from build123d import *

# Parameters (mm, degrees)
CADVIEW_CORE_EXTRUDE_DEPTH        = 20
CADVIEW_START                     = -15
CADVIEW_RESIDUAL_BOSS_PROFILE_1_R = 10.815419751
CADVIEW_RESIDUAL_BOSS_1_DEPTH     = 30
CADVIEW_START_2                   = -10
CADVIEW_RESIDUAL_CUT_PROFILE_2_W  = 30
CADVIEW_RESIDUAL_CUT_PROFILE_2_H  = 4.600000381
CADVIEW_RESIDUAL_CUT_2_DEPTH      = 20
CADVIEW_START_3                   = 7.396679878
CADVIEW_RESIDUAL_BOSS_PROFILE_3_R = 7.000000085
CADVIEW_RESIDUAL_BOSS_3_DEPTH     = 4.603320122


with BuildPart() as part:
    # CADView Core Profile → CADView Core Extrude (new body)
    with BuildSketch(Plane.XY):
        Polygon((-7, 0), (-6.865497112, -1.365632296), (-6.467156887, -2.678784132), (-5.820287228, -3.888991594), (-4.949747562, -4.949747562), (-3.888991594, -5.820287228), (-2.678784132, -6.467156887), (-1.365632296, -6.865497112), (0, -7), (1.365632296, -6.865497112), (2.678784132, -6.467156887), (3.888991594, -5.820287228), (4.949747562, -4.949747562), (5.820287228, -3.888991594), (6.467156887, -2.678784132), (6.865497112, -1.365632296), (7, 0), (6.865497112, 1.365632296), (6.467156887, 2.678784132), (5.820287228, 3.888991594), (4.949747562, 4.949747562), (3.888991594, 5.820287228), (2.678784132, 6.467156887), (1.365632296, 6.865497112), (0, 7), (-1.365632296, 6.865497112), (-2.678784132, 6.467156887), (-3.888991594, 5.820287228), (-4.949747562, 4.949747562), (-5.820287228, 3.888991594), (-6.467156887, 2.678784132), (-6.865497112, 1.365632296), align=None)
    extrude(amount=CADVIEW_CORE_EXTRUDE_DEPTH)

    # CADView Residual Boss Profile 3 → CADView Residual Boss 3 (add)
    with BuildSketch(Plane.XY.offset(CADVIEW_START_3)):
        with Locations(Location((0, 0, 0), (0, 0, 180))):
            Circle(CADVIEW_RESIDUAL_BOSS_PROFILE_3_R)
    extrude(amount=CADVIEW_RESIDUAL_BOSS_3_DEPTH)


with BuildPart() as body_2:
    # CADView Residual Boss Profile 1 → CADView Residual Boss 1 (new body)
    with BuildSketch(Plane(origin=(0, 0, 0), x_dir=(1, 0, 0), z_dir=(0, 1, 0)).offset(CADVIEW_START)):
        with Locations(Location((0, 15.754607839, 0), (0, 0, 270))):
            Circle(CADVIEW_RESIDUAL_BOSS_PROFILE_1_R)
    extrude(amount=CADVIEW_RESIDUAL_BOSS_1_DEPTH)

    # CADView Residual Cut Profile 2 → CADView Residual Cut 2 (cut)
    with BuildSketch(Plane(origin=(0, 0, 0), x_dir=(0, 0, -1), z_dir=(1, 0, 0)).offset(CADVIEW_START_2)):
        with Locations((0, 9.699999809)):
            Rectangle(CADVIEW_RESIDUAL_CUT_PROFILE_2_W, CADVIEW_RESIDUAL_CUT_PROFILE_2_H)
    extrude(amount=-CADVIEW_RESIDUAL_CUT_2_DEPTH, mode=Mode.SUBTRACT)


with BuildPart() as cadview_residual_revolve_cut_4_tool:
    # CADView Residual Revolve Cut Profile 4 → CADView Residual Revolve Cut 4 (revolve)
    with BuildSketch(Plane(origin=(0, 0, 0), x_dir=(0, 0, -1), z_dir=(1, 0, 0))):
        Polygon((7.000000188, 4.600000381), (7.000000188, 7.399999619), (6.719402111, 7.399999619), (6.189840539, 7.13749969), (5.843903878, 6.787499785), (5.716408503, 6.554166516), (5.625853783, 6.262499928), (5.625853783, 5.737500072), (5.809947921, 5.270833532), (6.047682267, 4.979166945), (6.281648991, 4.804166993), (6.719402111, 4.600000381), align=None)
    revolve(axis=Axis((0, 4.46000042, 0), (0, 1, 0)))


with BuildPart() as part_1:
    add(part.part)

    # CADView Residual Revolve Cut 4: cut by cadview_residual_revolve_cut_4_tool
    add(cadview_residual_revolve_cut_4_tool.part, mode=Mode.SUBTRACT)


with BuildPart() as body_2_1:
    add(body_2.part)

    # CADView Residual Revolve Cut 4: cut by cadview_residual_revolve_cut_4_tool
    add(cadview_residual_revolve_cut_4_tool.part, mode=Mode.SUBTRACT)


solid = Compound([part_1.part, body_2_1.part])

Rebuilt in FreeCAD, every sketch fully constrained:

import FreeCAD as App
import Part
import Sketcher
Q = App.Units.Quantity

doc = App.newDocument("Part")
params = doc.addObject("Spreadsheet::Sheet", "Params")
for row, (alias, value) in enumerate([
    ("pad1_length", "20 mm"),
    ("sketch2_diameter", "14 mm"),
    ("pad2_length", "4.60332 mm"),
    ("pad3_length", "30 mm"),
    ("sketch4_height", "30 mm"),
    ("sketch4_width", "4.6 mm"),
    ("pocket1_length", "20 mm"),
    ("sketch5_width", "2.799999 mm"),
    ("revolution_angle", "360 deg"),
], start=1):
    params.set(f"A{row}", alias)
    params.set(f"B{row}", "=" + value)
    params.setAlias(f"B{row}", alias)

body = doc.addObject("PartDesign::Body", "Body")

sketch1 = doc.addObject("Sketcher::SketchObject", "Sketch")
body.addObject(sketch1)
sketch1.AttachmentSupport = (doc.XY_Plane, [""])
sketch1.MapMode = "FlatFace"
sketch1.addGeometry([
    Part.LineSegment(App.Vector(-7, 0, 0), App.Vector(-6.865497, -1.365632, 0)),
    Part.LineSegment(App.Vector(-6.865497, -1.365632, 0), App.Vector(-6.467157, -2.678784, 0)),
    Part.LineSegment(App.Vector(-6.467157, -2.678784, 0), App.Vector(-5.820287, -3.888992, 0)),
    Part.LineSegment(App.Vector(-5.820287, -3.888992, 0), App.Vector(-4.949748, -4.949748, 0)),
    Part.LineSegment(App.Vector(-4.949748, -4.949748, 0), App.Vector(-3.888992, -5.820287, 0)),
    Part.LineSegment(App.Vector(-3.888992, -5.820287, 0), App.Vector(-2.678784, -6.467157, 0)),
    Part.LineSegment(App.Vector(-2.678784, -6.467157, 0), App.Vector(-1.365632, -6.865497, 0)),
    Part.LineSegment(App.Vector(-1.365632, -6.865497, 0), App.Vector(0, -7, 0)),
    Part.LineSegment(App.Vector(0, -7, 0), App.Vector(1.365632, -6.865497, 0)),
    Part.LineSegment(App.Vector(1.365632, -6.865497, 0), App.Vector(2.678784, -6.467157, 0)),
    Part.LineSegment(App.Vector(2.678784, -6.467157, 0), App.Vector(3.888992, -5.820287, 0)),
    Part.LineSegment(App.Vector(3.888992, -5.820287, 0), App.Vector(4.949748, -4.949748, 0)),
    Part.LineSegment(App.Vector(4.949748, -4.949748, 0), App.Vector(5.820287, -3.888992, 0)),
    Part.LineSegment(App.Vector(5.820287, -3.888992, 0), App.Vector(6.467157, -2.678784, 0)),
    Part.LineSegment(App.Vector(6.467157, -2.678784, 0), App.Vector(6.865497, -1.365632, 0)),
    Part.LineSegment(App.Vector(6.865497, -1.365632, 0), App.Vector(7, 0, 0)),
    Part.LineSegment(App.Vector(7, 0, 0), App.Vector(6.865497, 1.365632, 0)),
    Part.LineSegment(App.Vector(6.865497, 1.365632, 0), App.Vector(6.467157, 2.678784, 0)),
    Part.LineSegment(App.Vector(6.467157, 2.678784, 0), App.Vector(5.820287, 3.888992, 0)),
    Part.LineSegment(App.Vector(5.820287, 3.888992, 0), App.Vector(4.949748, 4.949748, 0)),
    Part.LineSegment(App.Vector(4.949748, 4.949748, 0), App.Vector(3.888992, 5.820287, 0)),
    Part.LineSegment(App.Vector(3.888992, 5.820287, 0), App.Vector(2.678784, 6.467157, 0)),
    Part.LineSegment(App.Vector(2.678784, 6.467157, 0), App.Vector(1.365632, 6.865497, 0)),
    Part.LineSegment(App.Vector(1.365632, 6.865497, 0), App.Vector(0, 7, 0)),
    Part.LineSegment(App.Vector(0, 7, 0), App.Vector(-1.365632, 6.865497, 0)),
    Part.LineSegment(App.Vector(-1.365632, 6.865497, 0), App.Vector(-2.678784, 6.467157, 0)),
    Part.LineSegment(App.Vector(-2.678784, 6.467157, 0), App.Vector(-3.888992, 5.820287, 0)),
    Part.LineSegment(App.Vector(-3.888992, 5.820287, 0), App.Vector(-4.949748, 4.949748, 0)),
    Part.LineSegment(App.Vector(-4.949748, 4.949748, 0), App.Vector(-5.820287, 3.888992, 0)),
    Part.LineSegment(App.Vector(-5.820287, 3.888992, 0), App.Vector(-6.467157, 2.678784, 0)),
    Part.LineSegment(App.Vector(-6.467157, 2.678784, 0), App.Vector(-6.865497, 1.365632, 0)),
    Part.LineSegment(App.Vector(-6.865497, 1.365632, 0), App.Vector(-7, 0, 0)),
], False)
sketch1.addConstraint([
    Sketcher.Constraint("Coincident", 0, 2, 1, 1),
    Sketcher.Constraint("Coincident", 1, 2, 2, 1),
    Sketcher.Constraint("Coincident", 2, 2, 3, 1),
    Sketcher.Constraint("Coincident", 3, 2, 4, 1),
    Sketcher.Constraint("Coincident", 4, 2, 5, 1),
    Sketcher.Constraint("Coincident", 5, 2, 6, 1),
    Sketcher.Constraint("Coincident", 6, 2, 7, 1),
    Sketcher.Constraint("Coincident", 7, 2, 8, 1),
    Sketcher.Constraint("Coincident", 8, 2, 9, 1),
    Sketcher.Constraint("Coincident", 9, 2, 10, 1),
    Sketcher.Constraint("Coincident", 10, 2, 11, 1),
    Sketcher.Constraint("Coincident", 11, 2, 12, 1),
    Sketcher.Constraint("Coincident", 12, 2, 13, 1),
    Sketcher.Constraint("Coincident", 13, 2, 14, 1),
    Sketcher.Constraint("Coincident", 14, 2, 15, 1),
    Sketcher.Constraint("Coincident", 15, 2, 16, 1),
    Sketcher.Constraint("Coincident", 16, 2, 17, 1),
    Sketcher.Constraint("Coincident", 17, 2, 18, 1),
    Sketcher.Constraint("Coincident", 18, 2, 19, 1),
    Sketcher.Constraint("Coincident", 19, 2, 20, 1),
    Sketcher.Constraint("Coincident", 20, 2, 21, 1),
    Sketcher.Constraint("Coincident", 21, 2, 22, 1),
    Sketcher.Constraint("Coincident", 22, 2, 23, 1),
    Sketcher.Constraint("Coincident", 23, 2, 24, 1),
    Sketcher.Constraint("Coincident", 24, 2, 25, 1),
    Sketcher.Constraint("Coincident", 25, 2, 26, 1),
    Sketcher.Constraint("Coincident", 26, 2, 27, 1),
    Sketcher.Constraint("Coincident", 27, 2, 28, 1),
    Sketcher.Constraint("Coincident", 28, 2, 29, 1),
    Sketcher.Constraint("Coincident", 29, 2, 30, 1),
    Sketcher.Constraint("Coincident", 30, 2, 31, 1),
    Sketcher.Constraint("Coincident", 31, 2, 0, 1),
    Sketcher.Constraint("PointOnObject", 7, 2, -2),
    Sketcher.Constraint("PointOnObject", 15, 2, -1),
    Sketcher.Constraint("PointOnObject", 23, 2, -2),
    Sketcher.Constraint("PointOnObject", 31, 2, -1),
    Sketcher.Constraint("DistanceY", 7, 2, -1, 1, Q("7 mm")),
    Sketcher.Constraint("DistanceX", -1, 1, 15, 2, Q("7 mm")),
    Sketcher.Constraint("DistanceY", -1, 1, 23, 2, Q("7 mm")),
    Sketcher.Constraint("DistanceX", 31, 2, -1, 1, Q("7 mm")),
    Sketcher.Constraint("Distance", 0, Q("1.37224 mm")),
    Sketcher.Constraint("Distance", 1, Q("1.37224 mm")),
    Sketcher.Constraint("Distance", 2, Q("1.37224 mm")),
    Sketcher.Constraint("Distance", 3, Q("1.37224 mm")),
    Sketcher.Constraint("Distance", 4, Q("1.37224 mm")),
    Sketcher.Constraint("Distance", 5, Q("1.37224 mm")),
    Sketcher.Constraint("Distance", 6, Q("1.37224 mm")),
    Sketcher.Constraint("Distance", 7, Q("1.37224 mm")),
    Sketcher.Constraint("Distance", 8, Q("1.37224 mm")),
    Sketcher.Constraint("Distance", 9, Q("1.37224 mm")),
    Sketcher.Constraint("Distance", 10, Q("1.37224 mm")),
    Sketcher.Constraint("Distance", 11, Q("1.37224 mm")),
    Sketcher.Constraint("Distance", 12, Q("1.37224 mm")),
    Sketcher.Constraint("Distance", 13, Q("1.37224 mm")),
    Sketcher.Constraint("Distance", 14, Q("1.37224 mm")),
    Sketcher.Constraint("Distance", 15, Q("1.37224 mm")),
    Sketcher.Constraint("Distance", 16, Q("1.37224 mm")),
    Sketcher.Constraint("Distance", 17, Q("1.37224 mm")),
    Sketcher.Constraint("Distance", 18, Q("1.37224 mm")),
    Sketcher.Constraint("Distance", 19, Q("1.37224 mm")),
    Sketcher.Constraint("Distance", 20, Q("1.37224 mm")),
    Sketcher.Constraint("Distance", 21, Q("1.37224 mm")),
    Sketcher.Constraint("Distance", 22, Q("1.37224 mm")),
    Sketcher.Constraint("Distance", 23, Q("1.37224 mm")),
    Sketcher.Constraint("Distance", 24, Q("1.37224 mm")),
    Sketcher.Constraint("Distance", 25, Q("1.37224 mm")),
    Sketcher.Constraint("Distance", 26, Q("1.37224 mm")),
    Sketcher.Constraint("Distance", 27, Q("1.37224 mm")),
    Sketcher.Constraint("Distance", 28, Q("1.37224 mm")),
    Sketcher.Constraint("Distance", 29, Q("1.37224 mm")),
    Sketcher.Constraint("Distance", 30, Q("1.37224 mm")),
    Sketcher.Constraint("Distance", 31, Q("1.37224 mm")),
    Sketcher.Constraint("DistanceY", 2, 2, -1, 1, Q("3.888992 mm")),
    Sketcher.Constraint("DistanceX", 4, 2, -1, 1, Q("3.888992 mm")),
    Sketcher.Constraint("DistanceX", -1, 1, 10, 2, Q("3.888992 mm")),
    Sketcher.Constraint("DistanceY", 12, 2, -1, 1, Q("3.888992 mm")),
    Sketcher.Constraint("DistanceY", -1, 1, 18, 2, Q("3.888992 mm")),
    Sketcher.Constraint("DistanceX", -1, 1, 20, 2, Q("3.888992 mm")),
    Sketcher.Constraint("DistanceX", 26, 2, -1, 1, Q("3.888992 mm")),
    Sketcher.Constraint("DistanceY", -1, 1, 28, 2, Q("3.888992 mm")),
    Sketcher.Constraint("DistanceX", 0, 2, 1, 2, Q("0.39834 mm")),
    Sketcher.Constraint("DistanceX", 1, 2, 2, 2, Q("0.64687 mm")),
    Sketcher.Constraint("DistanceX", 2, 2, 3, 2, Q("0.87054 mm")),
    Sketcher.Constraint("DistanceY", 5, 2, 4, 2, Q("0.64687 mm")),
    Sketcher.Constraint("DistanceY", 8, 2, 5, 2, Q("0.39834 mm")),
    Sketcher.Constraint("DistanceX", 8, 2, 9, 2, Q("1.313152 mm")),
    Sketcher.Constraint("DistanceY", 10, 2, 11, 2, Q("0.87054 mm")),
    Sketcher.Constraint("DistanceX", 12, 2, 13, 2, Q("0.64687 mm")),
    Sketcher.Constraint("DistanceX", 13, 2, 16, 2, Q("0.39834 mm")),
    Sketcher.Constraint("DistanceX", 17, 2, 16, 2, Q("0.39834 mm")),
    Sketcher.Constraint("DistanceX", 19, 2, 18, 2, Q("0.87054 mm")),
    Sketcher.Constraint("DistanceY", 20, 2, 21, 2, Q("0.64687 mm")),
    Sketcher.Constraint("DistanceY", 21, 2, 24, 2, Q("0.39834 mm")),
    Sketcher.Constraint("DistanceX", 25, 2, 24, 2, Q("1.313152 mm")),
    Sketcher.Constraint("DistanceY", 27, 2, 26, 2, Q("0.87054 mm")),
    Sketcher.Constraint("DistanceX", 29, 2, 28, 2, Q("0.64687 mm")),
])
pad1 = doc.addObject("PartDesign::Pad", "Pad")
body.addObject(pad1)
pad1.Profile = sketch1
pad1.setExpression("Length", "Params.pad1_length")

sketch2 = doc.addObject("Sketcher::SketchObject", "Sketch001")
body.addObject(sketch2)
sketch2.AttachmentSupport = (doc.XY_Plane, [""])
sketch2.MapMode = "FlatFace"
sketch2.AttachmentOffset = App.Placement(App.Vector(0, 0, 7.39668), App.Rotation())
sketch2.addGeometry(Part.Circle(App.Vector(0, 0, 0), App.Vector(0, 0, 1), 7), False)
sketch2.addConstraint([
    Sketcher.Constraint("Coincident", 0, 3, -1, 1),
    Sketcher.Constraint("Diameter", 0, Q("14 mm")),
])
sketch2.setExpression("Constraints[1]", "Params.sketch2_diameter")
pad2 = doc.addObject("PartDesign::Pad", "Pad001")
body.addObject(pad2)
pad2.Profile = sketch2
pad2.setExpression("Length", "Params.pad2_length")
body2 = doc.addObject("PartDesign::Body", "Body001")

sketch3 = doc.addObject("Sketcher::SketchObject", "Sketch002")
body2.addObject(sketch3)
sketch3.AttachmentSupport = (doc.getObject("XZ_Plane001"), [""])
sketch3.MapMode = "FlatFace"
sketch3.AttachmentOffset = App.Placement(App.Vector(0, 0, 15), App.Rotation())
sketch3.addGeometry(Part.Circle(App.Vector(0, -16, 0), App.Vector(0, 0, 1), 11), False)
sketch3.addConstraint([
    Sketcher.Constraint("PointOnObject", 0, 3, -2),
    Sketcher.Constraint("Diameter", 0, Q("21.63084 mm")),
    Sketcher.Constraint("DistanceY", 0, 3, -1, 1, Q("15.754608 mm")),
])
pad3 = doc.addObject("PartDesign::Pad", "Pad002")
body2.addObject(pad3)
pad3.Profile = sketch3
pad3.setExpression("Length", "Params.pad3_length")
pad3.Reversed = True

sketch4 = doc.addObject("Sketcher::SketchObject", "Sketch003")
body2.addObject(sketch4)
sketch4.AttachmentSupport = (doc.getObject("YZ_Plane001"), [""])
sketch4.MapMode = "FlatFace"
sketch4.AttachmentOffset = App.Placement(App.Vector(0, 0, -10), App.Rotation())
sketch4.addGeometry([
    Part.LineSegment(App.Vector(12, 15, 0), App.Vector(7.4, 15, 0)),
    Part.LineSegment(App.Vector(7.4, 15, 0), App.Vector(7.4, -15, 0)),
    Part.LineSegment(App.Vector(7.4, -15, 0), App.Vector(12, -15, 0)),
    Part.LineSegment(App.Vector(12, -15, 0), App.Vector(12, 15, 0)),
], False)
sketch4.addConstraint([
    Sketcher.Constraint("Coincident", 0, 2, 1, 1),
    Sketcher.Constraint("Coincident", 1, 2, 2, 1),
    Sketcher.Constraint("Coincident", 2, 2, 3, 1),
    Sketcher.Constraint("Coincident", 3, 2, 0, 1),
    Sketcher.Constraint("Horizontal", 0),
    Sketcher.Constraint("Vertical", 1),
    Sketcher.Constraint("Horizontal", 2),
    Sketcher.Constraint("Vertical", 3),
    Sketcher.Constraint("DistanceY", 1, 2, 1, 1, Q("30 mm")),
    Sketcher.Constraint("DistanceX", 0, 2, 0, 1, Q("4.6 mm")),
    Sketcher.Constraint("DistanceY", -1, 1, 0, 2, Q("15 mm")),
    Sketcher.Constraint("DistanceX", -1, 1, 2, 2, Q("12 mm")),
])
sketch4.setExpression("Constraints[8]", "Params.sketch4_height")
sketch4.setExpression("Constraints[9]", "Params.sketch4_width")
pocket1 = doc.addObject("PartDesign::Pocket", "Pocket")
body2.addObject(pocket1)
pocket1.Profile = sketch4
pocket1.setExpression("Length", "Params.pocket1_length")
body3 = doc.addObject("PartDesign::Body", "Body002")

sketch5 = doc.addObject("Sketcher::SketchObject", "Sketch004")
body3.addObject(sketch5)
sketch5.AttachmentSupport = (doc.getObject("YZ_Plane002"), [""])
sketch5.MapMode = "FlatFace"
sketch5.addGeometry([
    Part.LineSegment(App.Vector(4.6, -7, 0), App.Vector(7.4, -7, 0)),
    Part.LineSegment(App.Vector(7.4, -7, 0), App.Vector(7.4, -6.72, 0)),
    Part.LineSegment(App.Vector(7.4, -6.72, 0), App.Vector(7.14, -6.19, 0)),
    Part.LineSegment(App.Vector(7.14, -6.19, 0), App.Vector(6.79, -5.84, 0)),
    Part.LineSegment(App.Vector(6.79, -5.84, 0), App.Vector(6.55, -5.72, 0)),
    Part.LineSegment(App.Vector(6.55, -5.72, 0), App.Vector(6.26, -5.63, 0)),
    Part.LineSegment(App.Vector(6.26, -5.63, 0), App.Vector(5.74, -5.63, 0)),
    Part.LineSegment(App.Vector(5.74, -5.63, 0), App.Vector(5.27, -5.81, 0)),
    Part.LineSegment(App.Vector(5.27, -5.81, 0), App.Vector(4.98, -6.05, 0)),
    Part.LineSegment(App.Vector(4.98, -6.05, 0), App.Vector(4.8, -6.28, 0)),
    Part.LineSegment(App.Vector(4.8, -6.28, 0), App.Vector(4.6, -6.72, 0)),
    Part.LineSegment(App.Vector(4.6, -6.72, 0), App.Vector(4.6, -7, 0)),
], False)
sketch5.addConstraint([
    Sketcher.Constraint("Coincident", 0, 2, 1, 1),
    Sketcher.Constraint("Coincident", 1, 2, 2, 1),
    Sketcher.Constraint("Coincident", 2, 2, 3, 1),
    Sketcher.Constraint("Coincident", 3, 2, 4, 1),
    Sketcher.Constraint("Coincident", 4, 2, 5, 1),
    Sketcher.Constraint("Coincident", 5, 2, 6, 1),
    Sketcher.Constraint("Coincident", 6, 2, 7, 1),
    Sketcher.Constraint("Coincident", 7, 2, 8, 1),
    Sketcher.Constraint("Coincident", 8, 2, 9, 1),
    Sketcher.Constraint("Coincident", 9, 2, 10, 1),
    Sketcher.Constraint("Coincident", 10, 2, 11, 1),
    Sketcher.Constraint("Coincident", 11, 2, 0, 1),
    Sketcher.Constraint("Horizontal", 0),
    Sketcher.Constraint("Vertical", 1),
    Sketcher.Constraint("Horizontal", 6),
    Sketcher.Constraint("Vertical", 11),
    Sketcher.Constraint("Horizontal", 1, 2, 10, 2),
    Sketcher.Constraint("DistanceX", 0, 1, 0, 2, Q("2.799999 mm")),
    Sketcher.Constraint("DistanceY", 0, 2, -1, 1, Q("7 mm")),
    Sketcher.Constraint("DistanceX", -1, 1, 0, 2, Q("7.4 mm")),
    Sketcher.Constraint("DistanceX", 6, 2, 2, 2, Q("1.4 mm")),
    Sketcher.Constraint("DistanceX", 6, 2, 6, 1, Q("0.525 mm")),
    Sketcher.Constraint("DistanceX", 3, 2, 2, 2, Q("0.35 mm")),
    Sketcher.Constraint("DistanceX", 9, 2, 4, 2, Q("1.75 mm")),
    Sketcher.Constraint("DistanceY", 1, 1, 1, 2, Q("0.280598 mm")),
    Sketcher.Constraint("DistanceX", 8, 2, 4, 2, Q("1.575 mm")),
    Sketcher.Constraint("Distance", 5, Q("0.305401 mm")),
    Sketcher.Constraint("DistanceX", -1, 1, 2, 2, Q("7.1375 mm")),
    Sketcher.Constraint("DistanceY", 1, 2, 3, 2, Q("0.875498 mm")),
    Sketcher.Constraint("DistanceY", 9, 2, 7, 2, Q("0.471701 mm")),
    Sketcher.Constraint("Distance", 2, Q("0.591051 mm")),
    Sketcher.Constraint("Distance", 8, Q("0.376281 mm")),
    Sketcher.Constraint("DistanceY", 4, 2, -1, 1, Q("5.716409 mm")),
    Sketcher.Constraint("DistanceY", 9, 2, -1, 1, Q("6.281649 mm")),
    Sketcher.Constraint("DistanceY", 3, 2, 5, 2, Q("0.21805 mm")),
    Sketcher.Constraint("DistanceY", 8, 2, 6, 2, Q("0.421828 mm")),
])
sketch5.setExpression("Constraints[17]", "Params.sketch5_width")
revolution = doc.addObject("PartDesign::Revolution", "Revolution")
body3.addObject(revolution)
revolution.Profile = sketch5
revolution.ReferenceAxis = (sketch5, ["H_Axis"])
revolution.setExpression("Angle", "Params.revolution_angle")
doc.recompute()

body4 = doc.addObject("PartDesign::Body", "Body003")
body4.BaseFeature = body3
boolean = doc.addObject("PartDesign::Boolean", "Boolean")
body.addObject(boolean)
boolean.Type = "Cut"
boolean.addObjects([body4])
doc.recompute()

boolean2 = doc.addObject("PartDesign::Boolean", "Boolean001")
body2.addObject(boolean2)
boolean2.Type = "Cut"
boolean2.addObjects([body3])

doc.recompute()
